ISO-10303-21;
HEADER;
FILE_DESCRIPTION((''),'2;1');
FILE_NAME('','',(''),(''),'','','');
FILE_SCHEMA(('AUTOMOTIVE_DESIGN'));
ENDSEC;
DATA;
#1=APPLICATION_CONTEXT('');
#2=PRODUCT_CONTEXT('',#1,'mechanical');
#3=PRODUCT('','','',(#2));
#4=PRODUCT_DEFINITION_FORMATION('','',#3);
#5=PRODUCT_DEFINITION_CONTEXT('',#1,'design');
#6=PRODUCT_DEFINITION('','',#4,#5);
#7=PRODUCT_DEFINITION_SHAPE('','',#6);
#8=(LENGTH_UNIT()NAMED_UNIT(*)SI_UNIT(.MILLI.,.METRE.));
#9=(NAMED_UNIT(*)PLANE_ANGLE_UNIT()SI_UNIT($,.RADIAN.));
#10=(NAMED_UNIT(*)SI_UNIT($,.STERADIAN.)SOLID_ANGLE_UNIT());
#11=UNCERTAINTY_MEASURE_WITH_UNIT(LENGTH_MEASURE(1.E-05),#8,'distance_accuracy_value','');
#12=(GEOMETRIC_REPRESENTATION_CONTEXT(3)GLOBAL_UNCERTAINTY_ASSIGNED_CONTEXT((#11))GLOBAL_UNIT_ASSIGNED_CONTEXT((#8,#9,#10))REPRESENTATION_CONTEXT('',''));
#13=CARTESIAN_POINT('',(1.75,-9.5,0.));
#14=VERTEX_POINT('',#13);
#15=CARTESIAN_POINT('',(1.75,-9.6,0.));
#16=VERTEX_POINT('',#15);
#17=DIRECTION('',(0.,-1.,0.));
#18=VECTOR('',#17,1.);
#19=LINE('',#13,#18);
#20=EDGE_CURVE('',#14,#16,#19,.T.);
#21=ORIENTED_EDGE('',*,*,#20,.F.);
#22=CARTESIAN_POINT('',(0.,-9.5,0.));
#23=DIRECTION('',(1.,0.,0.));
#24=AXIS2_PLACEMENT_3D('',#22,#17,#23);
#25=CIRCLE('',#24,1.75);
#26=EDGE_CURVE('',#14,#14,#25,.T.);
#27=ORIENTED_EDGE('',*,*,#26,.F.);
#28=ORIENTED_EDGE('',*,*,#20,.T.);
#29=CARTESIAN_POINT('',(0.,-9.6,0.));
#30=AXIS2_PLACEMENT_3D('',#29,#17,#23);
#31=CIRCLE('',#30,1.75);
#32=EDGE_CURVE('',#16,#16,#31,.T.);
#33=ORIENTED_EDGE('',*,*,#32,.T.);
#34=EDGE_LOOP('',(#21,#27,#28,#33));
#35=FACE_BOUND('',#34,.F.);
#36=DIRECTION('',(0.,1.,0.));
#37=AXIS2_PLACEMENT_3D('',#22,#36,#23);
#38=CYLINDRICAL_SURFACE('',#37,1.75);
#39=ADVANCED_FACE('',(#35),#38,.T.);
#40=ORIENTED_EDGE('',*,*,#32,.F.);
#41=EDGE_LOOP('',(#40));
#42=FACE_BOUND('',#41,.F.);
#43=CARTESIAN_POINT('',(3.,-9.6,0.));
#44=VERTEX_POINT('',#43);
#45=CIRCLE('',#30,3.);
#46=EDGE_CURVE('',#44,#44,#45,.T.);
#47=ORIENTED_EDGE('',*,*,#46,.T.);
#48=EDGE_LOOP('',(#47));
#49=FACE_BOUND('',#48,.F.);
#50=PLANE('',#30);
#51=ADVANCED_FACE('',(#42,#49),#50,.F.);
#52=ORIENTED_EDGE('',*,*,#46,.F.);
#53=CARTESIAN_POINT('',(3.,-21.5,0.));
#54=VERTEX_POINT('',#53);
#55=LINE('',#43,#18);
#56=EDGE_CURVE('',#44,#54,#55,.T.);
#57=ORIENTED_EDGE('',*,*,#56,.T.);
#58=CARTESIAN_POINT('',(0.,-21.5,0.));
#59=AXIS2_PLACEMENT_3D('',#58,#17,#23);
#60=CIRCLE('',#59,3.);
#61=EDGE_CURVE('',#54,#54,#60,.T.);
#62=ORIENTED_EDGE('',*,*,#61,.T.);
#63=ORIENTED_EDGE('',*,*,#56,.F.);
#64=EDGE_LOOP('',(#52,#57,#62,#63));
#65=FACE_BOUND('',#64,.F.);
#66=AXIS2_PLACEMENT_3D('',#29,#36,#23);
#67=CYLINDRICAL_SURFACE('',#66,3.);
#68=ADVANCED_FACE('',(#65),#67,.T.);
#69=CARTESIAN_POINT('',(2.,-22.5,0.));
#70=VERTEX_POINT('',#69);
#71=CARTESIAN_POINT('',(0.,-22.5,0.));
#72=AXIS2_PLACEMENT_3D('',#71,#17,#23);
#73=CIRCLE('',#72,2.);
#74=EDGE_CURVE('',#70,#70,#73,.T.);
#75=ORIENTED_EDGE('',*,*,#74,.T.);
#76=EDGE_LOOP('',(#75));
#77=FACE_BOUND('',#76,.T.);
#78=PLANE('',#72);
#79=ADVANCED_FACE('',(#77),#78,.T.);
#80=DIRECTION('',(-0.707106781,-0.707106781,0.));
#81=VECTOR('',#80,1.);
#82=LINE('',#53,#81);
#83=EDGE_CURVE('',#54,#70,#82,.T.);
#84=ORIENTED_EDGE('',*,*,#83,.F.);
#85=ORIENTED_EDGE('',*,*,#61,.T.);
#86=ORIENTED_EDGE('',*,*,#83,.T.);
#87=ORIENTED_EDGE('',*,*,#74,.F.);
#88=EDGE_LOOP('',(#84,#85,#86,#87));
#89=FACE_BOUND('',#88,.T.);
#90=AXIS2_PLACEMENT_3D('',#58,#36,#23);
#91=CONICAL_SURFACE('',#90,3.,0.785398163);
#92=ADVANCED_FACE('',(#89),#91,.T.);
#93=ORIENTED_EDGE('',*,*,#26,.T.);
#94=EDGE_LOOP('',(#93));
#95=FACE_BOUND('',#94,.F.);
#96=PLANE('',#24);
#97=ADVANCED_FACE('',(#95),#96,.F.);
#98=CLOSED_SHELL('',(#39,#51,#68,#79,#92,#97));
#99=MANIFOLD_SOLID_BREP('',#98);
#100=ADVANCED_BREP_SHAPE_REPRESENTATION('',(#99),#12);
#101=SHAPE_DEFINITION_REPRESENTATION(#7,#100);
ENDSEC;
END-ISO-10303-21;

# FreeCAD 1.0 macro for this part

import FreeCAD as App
import Part
import Sketcher
Q = App.Units.Quantity


def edges_at(feature, points):
    """Names of the edges that pass closest to the given points."""
    edges = feature.Shape.Edges
    near = lambda p: min(range(len(edges)), key=lambda i: edges[i].distToShape(Part.Vertex(*p))[0])
    return sorted({f"Edge{near(p) + 1}" for p in points})

doc = App.newDocument("Part")
body = doc.addObject("PartDesign::Body", "Body")

# Sketch on XZ plane
sketch1 = body.newObject("Sketcher::SketchObject", "Sketch")
sketch1.AttachmentSupport = (doc.getObject("XZ_Plane"), [""])
sketch1.MapMode = "FlatFace"
sketch1.addGeometry(Part.Circle(App.Vector(0, 0, 0), App.Vector(0, 0, 1), 1.8), False)
sketch1.addConstraint(Sketcher.Constraint("Coincident", 0, 3, -1, 1))
sketch1.addConstraint(Sketcher.Constraint("Diameter", 0, Q("3.5 mm")))
pad1 = body.newObject("PartDesign::Pad", "Pad")
pad1.Profile = sketch1
pad1.Length = 0.1

# Sketch on XZ plane
sketch2 = body.newObject("Sketcher::SketchObject", "Sketch001")
sketch2.AttachmentSupport = (doc.getObject("XZ_Plane"), [""])
sketch2.MapMode = "FlatFace"
sketch2.AttachmentOffset = App.Placement(App.Vector(0, 0, 0.1), App.Rotation())
sketch2.addGeometry(Part.Circle(App.Vector(0, 0, 0), App.Vector(0, 0, 1), 3), False)
sketch2.addConstraint(Sketcher.Constraint("Coincident", 0, 3, -1, 1))
sketch2.addConstraint(Sketcher.Constraint("Diameter", 0, Q("6 mm")))
pad2 = body.newObject("PartDesign::Pad", "Pad001")
pad2.Profile = sketch2
pad2.Length = 12.9
doc.recompute()

chamfer = body.newObject("PartDesign::Chamfer", "Chamfer")
chamfer.Base = (pad2, edges_at(pad2, [(-3, -13, 0)]))
chamfer.Size = 1
body2 = doc.addObject("PartDesign::Body", "Body001")
doc.recompute()

body.Placement = App.Placement(App.Vector(0, -9.5, 0), App.Rotation(App.Vector(0, 0, 1), 0))
boolean = body2.newObject("PartDesign::Boolean", "Boolean")
boolean.Type = "Fuse"
boolean.addObjects([body])

doc.recompute()
